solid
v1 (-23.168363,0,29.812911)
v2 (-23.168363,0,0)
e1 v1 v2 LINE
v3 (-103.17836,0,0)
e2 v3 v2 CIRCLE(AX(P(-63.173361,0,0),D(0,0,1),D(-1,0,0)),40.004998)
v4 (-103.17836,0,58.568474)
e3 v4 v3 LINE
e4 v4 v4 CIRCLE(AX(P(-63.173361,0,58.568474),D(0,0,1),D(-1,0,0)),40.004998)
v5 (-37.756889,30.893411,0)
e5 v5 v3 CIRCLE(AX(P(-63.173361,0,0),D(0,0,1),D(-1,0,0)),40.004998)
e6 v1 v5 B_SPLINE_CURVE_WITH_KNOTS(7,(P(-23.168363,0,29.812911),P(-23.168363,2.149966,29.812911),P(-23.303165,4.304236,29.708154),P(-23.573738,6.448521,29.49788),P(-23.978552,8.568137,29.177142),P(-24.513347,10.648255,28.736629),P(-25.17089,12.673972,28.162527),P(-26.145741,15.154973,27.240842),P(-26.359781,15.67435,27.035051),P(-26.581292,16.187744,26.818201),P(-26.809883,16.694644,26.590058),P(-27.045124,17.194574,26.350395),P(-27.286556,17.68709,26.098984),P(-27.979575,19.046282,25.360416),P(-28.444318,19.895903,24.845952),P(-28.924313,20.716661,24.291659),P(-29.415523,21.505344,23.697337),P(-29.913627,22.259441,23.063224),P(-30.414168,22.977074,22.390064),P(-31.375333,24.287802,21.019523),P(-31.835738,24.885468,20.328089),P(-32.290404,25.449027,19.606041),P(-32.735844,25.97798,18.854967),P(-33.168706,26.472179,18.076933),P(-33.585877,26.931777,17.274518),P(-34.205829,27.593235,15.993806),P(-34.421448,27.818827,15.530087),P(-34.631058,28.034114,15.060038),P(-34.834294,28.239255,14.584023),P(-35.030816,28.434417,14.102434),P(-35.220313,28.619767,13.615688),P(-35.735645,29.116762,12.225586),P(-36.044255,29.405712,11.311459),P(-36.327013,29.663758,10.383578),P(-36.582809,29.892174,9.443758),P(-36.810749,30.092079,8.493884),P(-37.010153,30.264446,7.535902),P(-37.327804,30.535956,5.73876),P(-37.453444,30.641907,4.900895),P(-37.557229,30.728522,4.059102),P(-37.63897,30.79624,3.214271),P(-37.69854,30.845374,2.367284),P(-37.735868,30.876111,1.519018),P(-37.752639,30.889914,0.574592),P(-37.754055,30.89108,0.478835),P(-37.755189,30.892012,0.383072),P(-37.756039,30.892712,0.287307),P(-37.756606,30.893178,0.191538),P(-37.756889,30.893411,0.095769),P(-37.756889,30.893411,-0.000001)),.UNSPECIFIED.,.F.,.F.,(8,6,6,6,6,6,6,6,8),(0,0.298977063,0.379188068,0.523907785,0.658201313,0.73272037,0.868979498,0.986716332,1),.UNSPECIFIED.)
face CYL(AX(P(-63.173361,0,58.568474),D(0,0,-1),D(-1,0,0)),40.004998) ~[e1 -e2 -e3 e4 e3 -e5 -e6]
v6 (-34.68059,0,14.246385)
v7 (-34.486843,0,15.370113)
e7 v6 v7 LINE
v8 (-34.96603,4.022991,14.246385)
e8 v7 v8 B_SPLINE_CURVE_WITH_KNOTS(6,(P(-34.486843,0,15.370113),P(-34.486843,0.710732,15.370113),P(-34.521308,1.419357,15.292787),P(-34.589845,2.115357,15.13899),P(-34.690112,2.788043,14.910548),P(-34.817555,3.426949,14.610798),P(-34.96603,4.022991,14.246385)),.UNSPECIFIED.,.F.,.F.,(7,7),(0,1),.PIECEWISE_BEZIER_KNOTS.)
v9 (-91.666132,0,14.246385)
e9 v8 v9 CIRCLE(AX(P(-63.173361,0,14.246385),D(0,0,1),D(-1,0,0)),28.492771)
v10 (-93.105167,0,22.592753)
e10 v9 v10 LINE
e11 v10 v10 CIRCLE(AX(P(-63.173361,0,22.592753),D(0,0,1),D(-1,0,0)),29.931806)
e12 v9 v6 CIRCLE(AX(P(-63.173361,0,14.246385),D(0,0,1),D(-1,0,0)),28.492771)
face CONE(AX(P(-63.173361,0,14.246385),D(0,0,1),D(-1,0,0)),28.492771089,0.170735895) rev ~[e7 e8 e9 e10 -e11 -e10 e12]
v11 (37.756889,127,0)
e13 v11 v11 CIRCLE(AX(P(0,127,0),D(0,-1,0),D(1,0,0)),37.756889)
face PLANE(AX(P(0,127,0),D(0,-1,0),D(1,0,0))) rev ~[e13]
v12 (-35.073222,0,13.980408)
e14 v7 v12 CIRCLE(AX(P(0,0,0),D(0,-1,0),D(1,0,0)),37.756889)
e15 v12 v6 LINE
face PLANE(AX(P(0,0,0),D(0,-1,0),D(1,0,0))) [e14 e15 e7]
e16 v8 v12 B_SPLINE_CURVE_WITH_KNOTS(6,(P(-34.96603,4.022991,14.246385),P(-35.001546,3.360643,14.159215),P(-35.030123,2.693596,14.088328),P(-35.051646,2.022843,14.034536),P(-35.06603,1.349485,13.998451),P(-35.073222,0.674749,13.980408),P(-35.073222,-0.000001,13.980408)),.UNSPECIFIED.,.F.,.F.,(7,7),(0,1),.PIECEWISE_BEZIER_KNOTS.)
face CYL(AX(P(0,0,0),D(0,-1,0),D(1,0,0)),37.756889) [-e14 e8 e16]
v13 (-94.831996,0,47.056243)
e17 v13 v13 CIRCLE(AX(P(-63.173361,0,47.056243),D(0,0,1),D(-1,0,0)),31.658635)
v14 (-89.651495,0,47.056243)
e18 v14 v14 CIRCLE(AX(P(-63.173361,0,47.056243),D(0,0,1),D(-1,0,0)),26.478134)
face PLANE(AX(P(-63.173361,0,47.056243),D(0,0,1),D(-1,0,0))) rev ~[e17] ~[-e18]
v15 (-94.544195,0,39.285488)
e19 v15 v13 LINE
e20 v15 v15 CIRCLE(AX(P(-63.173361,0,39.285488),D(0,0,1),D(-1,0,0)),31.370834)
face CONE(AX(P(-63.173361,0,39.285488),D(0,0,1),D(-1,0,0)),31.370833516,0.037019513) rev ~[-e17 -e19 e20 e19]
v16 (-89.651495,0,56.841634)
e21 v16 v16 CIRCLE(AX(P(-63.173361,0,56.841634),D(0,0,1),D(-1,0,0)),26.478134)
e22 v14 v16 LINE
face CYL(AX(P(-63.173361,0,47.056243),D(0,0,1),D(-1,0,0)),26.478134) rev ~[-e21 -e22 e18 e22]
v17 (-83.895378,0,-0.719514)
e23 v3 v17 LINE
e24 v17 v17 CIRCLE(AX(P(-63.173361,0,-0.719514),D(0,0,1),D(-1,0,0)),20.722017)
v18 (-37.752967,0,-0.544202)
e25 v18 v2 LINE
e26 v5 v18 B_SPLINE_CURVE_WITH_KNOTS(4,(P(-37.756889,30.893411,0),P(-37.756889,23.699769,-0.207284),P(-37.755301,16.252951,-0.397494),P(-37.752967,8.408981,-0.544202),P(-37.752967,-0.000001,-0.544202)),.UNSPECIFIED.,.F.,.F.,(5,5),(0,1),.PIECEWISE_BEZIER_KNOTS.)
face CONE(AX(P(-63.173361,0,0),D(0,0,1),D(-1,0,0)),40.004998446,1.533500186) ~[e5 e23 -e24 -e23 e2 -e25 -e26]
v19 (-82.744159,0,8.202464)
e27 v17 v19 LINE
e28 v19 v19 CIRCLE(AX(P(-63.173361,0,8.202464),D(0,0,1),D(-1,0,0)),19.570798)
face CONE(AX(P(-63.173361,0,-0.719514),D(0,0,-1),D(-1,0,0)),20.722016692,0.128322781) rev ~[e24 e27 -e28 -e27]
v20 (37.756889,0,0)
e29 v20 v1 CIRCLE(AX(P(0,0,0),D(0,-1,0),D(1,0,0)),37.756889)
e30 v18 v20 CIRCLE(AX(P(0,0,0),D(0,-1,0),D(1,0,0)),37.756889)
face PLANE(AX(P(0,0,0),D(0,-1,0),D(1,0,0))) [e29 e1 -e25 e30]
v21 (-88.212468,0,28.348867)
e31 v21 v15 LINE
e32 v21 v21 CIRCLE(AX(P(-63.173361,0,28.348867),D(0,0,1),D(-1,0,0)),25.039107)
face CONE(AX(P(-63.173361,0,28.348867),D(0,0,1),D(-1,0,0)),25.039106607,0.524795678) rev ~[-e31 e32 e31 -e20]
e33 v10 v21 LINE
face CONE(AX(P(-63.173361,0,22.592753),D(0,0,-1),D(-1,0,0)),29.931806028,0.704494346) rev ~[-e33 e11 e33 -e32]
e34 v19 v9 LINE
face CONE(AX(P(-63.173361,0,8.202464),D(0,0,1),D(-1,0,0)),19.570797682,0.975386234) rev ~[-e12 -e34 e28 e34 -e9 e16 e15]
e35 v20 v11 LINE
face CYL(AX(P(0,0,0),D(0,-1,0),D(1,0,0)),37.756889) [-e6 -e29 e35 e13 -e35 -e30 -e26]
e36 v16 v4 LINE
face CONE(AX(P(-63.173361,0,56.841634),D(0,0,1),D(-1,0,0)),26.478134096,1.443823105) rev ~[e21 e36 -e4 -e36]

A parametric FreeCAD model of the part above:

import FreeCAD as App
import Part
import Sketcher

doc = App.newDocument("Part")
params = doc.addObject("Spreadsheet::Sheet", "Params")
for row, (alias, value) in enumerate([
    ("pad1_length", "5 in"),
    ("revolution_angle", "360 deg"),
], start=1):
    params.set(f"A{row}", alias)
    params.set(f"B{row}", "=" + value)
    params.setAlias(f"B{row}", alias)

body = doc.addObject("PartDesign::Body", "Body")

# Sketch on XZ plane
sketch1 = body.newObject("Sketcher::SketchObject", "Sketch")
sketch1.AttachmentSupport = (doc.getObject("XZ_Plane"), [""])
sketch1.MapMode = "FlatFace"
sketch1.addGeometry(Part.Circle(App.Vector(0, 0, 0), App.Vector(0, 0, 1), 38), False)
sketch1.addConstraint([
    Sketcher.Constraint("Coincident", 0, 3, -1, 1),
    Sketcher.Constraint("Diameter", 0, 75.513779),
])
pad1 = body.newObject("PartDesign::Pad", "Pad")
pad1.Profile = sketch1
pad1.setExpression("Length", "Params.pad1_length")
pad1.Reversed = True

# Sketch on XZ plane
sketch2 = body.newObject("Sketcher::SketchObject", "Sketch001")
sketch2.AttachmentSupport = (doc.getObject("XZ_Plane"), [""])
sketch2.MapMode = "FlatFace"
sketch2.addGeometry([
    Part.LineSegment(App.Vector(-103, 59, 0), App.Vector(-103, 0, 0)),  # 0
    Part.LineSegment(App.Vector(-103, 0, 0), App.Vector(-84, -1, 0)),  # 1
    Part.LineSegment(App.Vector(-84, -1, 0), App.Vector(-83, 8, 0)),  # 2
    Part.LineSegment(App.Vector(-83, 8, 0), App.Vector(-92, 14, 0)),  # 3
    Part.LineSegment(App.Vector(-92, 14, 0), App.Vector(-93, 23, 0)),  # 4
    Part.LineSegment(App.Vector(-93, 23, 0), App.Vector(-88, 28, 0)),  # 5
    Part.LineSegment(App.Vector(-88, 28, 0), App.Vector(-95, 39, 0)),  # 6
    Part.LineSegment(App.Vector(-95, 39, 0), App.Vector(-95, 47, 0)),  # 7
    Part.LineSegment(App.Vector(-95, 47, 0), App.Vector(-90, 47, 0)),  # 8
    Part.LineSegment(App.Vector(-90, 47, 0), App.Vector(-90, 57, 0)),  # 9
    Part.LineSegment(App.Vector(-90, 57, 0), App.Vector(-103, 59, 0)),  # 10
], False)
sketch2.addGeometry(Part.LineSegment(App.Vector(-63, -1, 0), App.Vector(-63, 59, 0)), True)  # axis
sketch2.addConstraint([
    Sketcher.Constraint("Coincident", 0, 2, 1, 1),
    Sketcher.Constraint("Coincident", 1, 2, 2, 1),
    Sketcher.Constraint("Coincident", 2, 2, 3, 1),
    Sketcher.Constraint("Coincident", 3, 2, 4, 1),
    Sketcher.Constraint("Coincident", 4, 2, 5, 1),
    Sketcher.Constraint("Coincident", 5, 2, 6, 1),
    Sketcher.Constraint("Coincident", 6, 2, 7, 1),
    Sketcher.Constraint("Coincident", 7, 2, 8, 1),
    Sketcher.Constraint("Coincident", 8, 2, 9, 1),
    Sketcher.Constraint("Coincident", 9, 2, 10, 1),
    Sketcher.Constraint("Coincident", 10, 2, 0, 1),
    Sketcher.Constraint("Vertical", 0),
    Sketcher.Constraint("Horizontal", 8),
    Sketcher.Constraint("Vertical", 9),
    Sketcher.Constraint("Vertical", 11),
    Sketcher.Constraint("PointOnObject", 0, 2, -1),
    Sketcher.Constraint("Horizontal", 1, 2, 11, 1),
    Sketcher.Constraint("Horizontal", 10, 2, 11, 2),
    Sketcher.Constraint("DistanceX", 8, 1, 8, 2, 5.1805),
    Sketcher.Constraint("Distance", 1, 19.296401),
    Sketcher.Constraint("DistanceY", 9, 1, 9, 2, 9.785391),
    Sketcher.Constraint("DistanceY", 11, 1, 11, 2, 59.287988),
    Sketcher.Constraint("DistanceX", 0, 2, 2, 2, 20.434201),
    Sketcher.Constraint("DistanceY", 1, 2, 3, 2, 14.965899),
    Sketcher.Constraint("DistanceX", 4, 2, 5, 2, 4.892699),
    Sketcher.Constraint("DistanceX", 7, 2, 6, 2, 0.287801),
    Sketcher.Constraint("Distance", 3, 10.77639),
    Sketcher.Constraint("Distance", 5, 7.554558),
    Sketcher.Constraint("DistanceY", 0, 2, 0, 1, 58.568474),
    Sketcher.Constraint("DistanceX", 0, 2, -1, 1, 103.17836),
    Sketcher.Constraint("DistanceY", -1, 1, 6, 2, 39.285488),
    Sketcher.Constraint("DistanceX", 11, 1, -1, 1, 63.173361),
    Sketcher.Constraint("DistanceY", 1, 2, 2, 2, 8.921979),
    Sketcher.Constraint("DistanceY", 3, 2, 4, 2, 8.346369),
    Sketcher.Constraint("DistanceX", 4, 2, 2, 2, 10.361008),
    Sketcher.Constraint("DistanceX", 7, 2, 4, 2, 1.726829),
    Sketcher.Constraint("DistanceY", 4, 2, 7, 2, 24.46349),
])
revolution = body.newObject("PartDesign::Revolution", "Revolution")
revolution.Profile = sketch2
revolution.ReferenceAxis = (sketch2, ["Axis0"])
revolution.setExpression("Angle", "Params.revolution_angle")

doc.recompute()
